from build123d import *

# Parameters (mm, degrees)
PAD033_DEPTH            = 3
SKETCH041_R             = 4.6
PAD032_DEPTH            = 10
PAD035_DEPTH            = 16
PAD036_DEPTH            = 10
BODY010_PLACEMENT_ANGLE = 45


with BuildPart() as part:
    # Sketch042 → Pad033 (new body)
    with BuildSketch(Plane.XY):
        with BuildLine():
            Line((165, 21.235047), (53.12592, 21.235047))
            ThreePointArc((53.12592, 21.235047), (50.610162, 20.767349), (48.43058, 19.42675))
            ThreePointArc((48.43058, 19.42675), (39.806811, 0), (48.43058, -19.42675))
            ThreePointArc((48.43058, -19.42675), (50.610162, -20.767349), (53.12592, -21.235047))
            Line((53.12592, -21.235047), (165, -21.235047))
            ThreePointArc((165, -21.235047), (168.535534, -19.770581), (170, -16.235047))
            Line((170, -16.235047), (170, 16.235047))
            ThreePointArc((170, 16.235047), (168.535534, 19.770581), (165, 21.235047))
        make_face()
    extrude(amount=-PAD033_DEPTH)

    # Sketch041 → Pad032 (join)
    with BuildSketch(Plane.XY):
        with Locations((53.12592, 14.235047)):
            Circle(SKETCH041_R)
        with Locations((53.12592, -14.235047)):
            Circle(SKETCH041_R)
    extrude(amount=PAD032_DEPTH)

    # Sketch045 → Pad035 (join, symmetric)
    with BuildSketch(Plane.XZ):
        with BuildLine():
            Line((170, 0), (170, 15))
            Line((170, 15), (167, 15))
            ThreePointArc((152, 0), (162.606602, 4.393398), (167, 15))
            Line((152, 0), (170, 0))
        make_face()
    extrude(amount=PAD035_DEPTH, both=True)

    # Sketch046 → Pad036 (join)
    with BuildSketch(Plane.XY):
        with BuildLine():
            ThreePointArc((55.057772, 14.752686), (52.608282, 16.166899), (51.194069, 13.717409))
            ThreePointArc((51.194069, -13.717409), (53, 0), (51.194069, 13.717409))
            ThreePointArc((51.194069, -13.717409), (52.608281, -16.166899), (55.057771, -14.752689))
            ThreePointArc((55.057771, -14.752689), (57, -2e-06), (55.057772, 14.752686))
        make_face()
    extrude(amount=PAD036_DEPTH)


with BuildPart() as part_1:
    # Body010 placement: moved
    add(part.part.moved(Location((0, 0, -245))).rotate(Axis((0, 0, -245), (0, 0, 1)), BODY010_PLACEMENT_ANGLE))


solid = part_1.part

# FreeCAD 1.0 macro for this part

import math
import FreeCAD as App
import Part
import Sketcher

doc = App.newDocument("Part")
body = doc.addObject("PartDesign::Body", "Body")

sketch1 = body.newObject("Sketcher::SketchObject", "Sketch")
sketch1.AttachmentSupport = (doc.getObject("XY_Plane"), [""])
sketch1.MapMode = "FlatFace"
sketch1.addGeometry(Part.LineSegment(App.Vector(165, 21.235047, 0), App.Vector(53.12592, 21.235047, 0)), False)
sketch1.addGeometry(Part.ArcOfCircle(Part.Circle(App.Vector(53.125917, 14.235056, 0), App.Vector(0, 0, 1), 6.999991), math.radians(89.999974), math.radians(132.126001)), False)
sketch1.addGeometry(Part.ArcOfCircle(Part.Circle(App.Vector(65.999999, 0, 0), App.Vector(0, 0, 1), 26.193188), math.radians(132.125974), math.radians(227.874026)), False)
sketch1.addGeometry(Part.ArcOfCircle(Part.Circle(App.Vector(53.125917, -14.235056, 0), App.Vector(0, 0, 1), 6.999991), math.radians(-132.126001), math.radians(-89.999974)), False)
sketch1.addGeometry(Part.LineSegment(App.Vector(53.12592, -21.235047, 0), App.Vector(165, -21.235047, 0)), False)
sketch1.addGeometry(Part.ArcOfCircle(Part.Circle(App.Vector(165, -16.235047, 0), App.Vector(0, 0, 1), 5), math.radians(-90.000004), math.radians(0.000004)), False)
sketch1.addGeometry(Part.LineSegment(App.Vector(170, -16.235047, 0), App.Vector(170, 16.235047, 0)), False)
sketch1.addGeometry(Part.ArcOfCircle(Part.Circle(App.Vector(165, 16.235047, 0), App.Vector(0, 0, 1), 5), math.radians(-0.000004), math.radians(90.000004)), False)
sketch1.addConstraint(Sketcher.Constraint("Tangent", 0, 2, 1, 1))
sketch1.addConstraint(Sketcher.Constraint("Tangent", 1, 2, 2, 1))
sketch1.addConstraint(Sketcher.Constraint("Tangent", 2, 2, 3, 1))
sketch1.addConstraint(Sketcher.Constraint("Tangent", 3, 2, 4, 1))
sketch1.addConstraint(Sketcher.Constraint("Tangent", 4, 2, 5, 1))
sketch1.addConstraint(Sketcher.Constraint("Tangent", 5, 2, 6, 1))
sketch1.addConstraint(Sketcher.Constraint("Tangent", 6, 2, 7, 1))
sketch1.addConstraint(Sketcher.Constraint("Tangent", 7, 2, 0, 1))
sketch1.addConstraint(Sketcher.Constraint("Horizontal", 0))
sketch1.addConstraint(Sketcher.Constraint("Horizontal", 4))
sketch1.addConstraint(Sketcher.Constraint("Vertical", 6))
sketch1.addConstraint(Sketcher.Constraint("Equal", 1, 3))
sketch1.addConstraint(Sketcher.Constraint("Equal", 5, 7))
sketch1.addConstraint(Sketcher.Constraint("Symmetric", 1, 3, 3, 3, -1))
sketch1.addConstraint(Sketcher.Constraint("Radius", 5, 5.0))
sketch1.addConstraint(Sketcher.Constraint("DistanceX", -1, 1, 2, 3, 65.999999))
sketch1.addConstraint(Sketcher.Constraint("DistanceX", -1, 1, 5, 3, 165.0))
sketch1.addConstraint(Sketcher.Constraint("Radius", 1, 6.999991))
sketch1.addConstraint(Sketcher.Constraint("Radius", 2, 26.193188))
sketch1.addConstraint(Sketcher.Constraint("DistanceX", 0, 2, 0, 1, 111.87408))
pad1 = body.newObject("PartDesign::Pad", "Pad")
pad1.Profile = sketch1
pad1.Length = 3
pad1.Reversed = True

sketch2 = body.newObject("Sketcher::SketchObject", "Sketch001")
sketch2.AttachmentSupport = (doc.getObject("XY_Plane"), [""])
sketch2.MapMode = "FlatFace"
sketch2.addGeometry(Part.Circle(App.Vector(53.12592, 14.235047, 0), App.Vector(0, 0, 1), 4.6), False)
sketch2.addGeometry(Part.Circle(App.Vector(53.12592, -14.235047, 0), App.Vector(0, 0, 1), 4.6), False)
sketch2.addConstraint(Sketcher.Constraint("Equal", 0, 1))
sketch2.addConstraint(Sketcher.Constraint("Symmetric", 0, 3, 1, 3, -1))
sketch2.addConstraint(Sketcher.Constraint("Diameter", 0, 9.2))
sketch2.addConstraint(Sketcher.Constraint("DistanceX", -1, 1, 0, 3, 53.12592))
sketch2.addConstraint(Sketcher.Constraint("DistanceY", -1, 1, 0, 3, 14.235047))
pad2 = body.newObject("PartDesign::Pad", "Pad001")
pad2.Profile = sketch2
pad2.Length = 10

sketch3 = body.newObject("Sketcher::SketchObject", "Sketch002")
sketch3.AttachmentSupport = (doc.getObject("XZ_Plane"), [""])
sketch3.MapMode = "FlatFace"
sketch3.addGeometry(Part.LineSegment(App.Vector(170, 0, 0), App.Vector(170, 15, 0)), False)
sketch3.addGeometry(Part.LineSegment(App.Vector(170, 15, 0), App.Vector(167, 15, 0)), False)
sketch3.addGeometry(Part.ArcOfCircle(Part.Circle(App.Vector(152.000001, 14.999999, 0), App.Vector(0, 0, 1), 14.999999), math.radians(-90.000004), math.radians(0.000004)), False)
sketch3.addGeometry(Part.LineSegment(App.Vector(152, 0, 0), App.Vector(170, 0, 0)), False)
sketch3.addConstraint(Sketcher.Constraint("Coincident", 0, 2, 1, 1))
sketch3.addConstraint(Sketcher.Constraint("Coincident", 1, 2, 2, 2))
sketch3.addConstraint(Sketcher.Constraint("Tangent", 2, 1, 3, 1))
sketch3.addConstraint(Sketcher.Constraint("Coincident", 3, 2, 0, 1))
sketch3.addConstraint(Sketcher.Constraint("Vertical", 0))
sketch3.addConstraint(Sketcher.Constraint("Horizontal", 1))
sketch3.addConstraint(Sketcher.Constraint("Horizontal", 3))
sketch3.addConstraint(Sketcher.Constraint("PointOnObject", 2, 1, -1))
sketch3.addConstraint(Sketcher.Constraint("Horizontal", 2, 3, 0, 2))
sketch3.addConstraint(Sketcher.Constraint("Radius", 2, 14.999999))
sketch3.addConstraint(Sketcher.Constraint("DistanceX", 1, 2, 1, 1, 3.0))
sketch3.addConstraint(Sketcher.Constraint("DistanceX", -1, 1, 2, 3, 152.000001))
pad3 = body.newObject("PartDesign::Pad", "Pad002")
pad3.Profile = sketch3
pad3.Length = 32
pad3.Midplane = True

sketch4 = body.newObject("Sketcher::SketchObject", "Sketch003")
sketch4.AttachmentSupport = (doc.getObject("XY_Plane"), [""])
sketch4.MapMode = "FlatFace"
sketch4.addGeometry(Part.ArcOfCircle(Part.Circle(App.Vector(53.12592, 14.235048, 0), App.Vector(0, 0, 1), 2), math.radians(15.000012), math.radians(195.000012)), False)
sketch4.addGeometry(Part.ArcOfCircle(Part.Circle(App.Vector(-0.000003, 0, 0), App.Vector(0, 0, 1), 53.000003), math.radians(-14.999999), math.radians(14.999999)), False)
sketch4.addGeometry(Part.ArcOfCircle(Part.Circle(App.Vector(53.12592, -14.235048, 0), App.Vector(0, 0, 1), 2), math.radians(164.999977), math.radians(344.999907)), False)
sketch4.addGeometry(Part.ArcOfCircle(Part.Circle(App.Vector(0.000002, 0, 0), App.Vector(0, 0, 1), 56.999998), math.radians(-15.000005), math.radians(15.000001)), False)
sketch4.addConstraint(Sketcher.Constraint("Tangent", 0, 2, 1, 2))
sketch4.addConstraint(Sketcher.Constraint("Tangent", 1, 1, 2, 1))
sketch4.addConstraint(Sketcher.Constraint("Tangent", 2, 2, 3, 1))
sketch4.addConstraint(Sketcher.Constraint("Tangent", 3, 2, 0, 1))
sketch4.addConstraint(Sketcher.Constraint("Coincident", 1, 3, -1, 1))
sketch4.addConstraint(Sketcher.Constraint("Coincident", 3, 3, -1, 1))
sketch4.addConstraint(Sketcher.Constraint("Vertical", 0, 3, 2, 3))
sketch4.addConstraint(Sketcher.Constraint("Radius", 0, 2.0))
sketch4.addConstraint(Sketcher.Constraint("Radius", 1, 53.000003))
sketch4.addConstraint(Sketcher.Constraint("DistanceX", -1, 1, 0, 3, 53.12592))
pad4 = body.newObject("PartDesign::Pad", "Pad003")
pad4.Profile = sketch4
pad4.Length = 10
body2 = doc.addObject("PartDesign::Body", "Body001")
doc.recompute()

body.Placement = App.Placement(App.Vector(0, 0, -245), App.Rotation(App.Vector(0, 0, 1), 45))
boolean = body2.newObject("PartDesign::Boolean", "Boolean")
boolean.Type = "Fuse"
boolean.addObjects([body])

doc.recompute()
